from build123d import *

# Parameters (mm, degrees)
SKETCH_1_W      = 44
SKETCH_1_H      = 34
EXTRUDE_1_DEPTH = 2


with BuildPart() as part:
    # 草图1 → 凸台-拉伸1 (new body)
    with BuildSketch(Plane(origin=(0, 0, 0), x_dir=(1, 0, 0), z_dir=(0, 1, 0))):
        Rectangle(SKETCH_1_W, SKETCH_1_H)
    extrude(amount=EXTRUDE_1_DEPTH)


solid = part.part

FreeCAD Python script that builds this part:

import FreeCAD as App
import Part
import Sketcher
from FreeCAD import Vector


def add_polygon(sketch, points):
    """Adds a closed chain of lines whose ends are joined by coincident constraints."""
    first, n = sketch.GeometryCount, len(points)
    for a, b in zip(points, points[1:] + points[:1]):
        sketch.addGeometry(Part.LineSegment(App.Vector(*a, 0), App.Vector(*b, 0)), False)
    for i in range(n):
        sketch.addConstraint(Sketcher.Constraint("Coincident", first + i, 2, first + (i + 1) % n, 1))

doc = App.newDocument("Part")
body = doc.addObject("PartDesign::Body", "Body")

# Sketch on XZ plane
sketch1 = body.newObject("Sketcher::SketchObject", "Sketch")
sketch1.AttachmentSupport = (doc.getObject("XZ_Plane"), [""])
sketch1.MapMode = "FlatFace"
add_polygon(sketch1, [(-22, -17), (-22, 17), (22, 17), (22, -17)])  # lines 0-3
sketch1.addConstraint(Sketcher.Constraint("Vertical", 0))
sketch1.addConstraint(Sketcher.Constraint("Horizontal", 1))
sketch1.addConstraint(Sketcher.Constraint("Vertical", 2))
sketch1.addConstraint(Sketcher.Constraint("Horizontal", 3))
sketch1.addConstraint(Sketcher.Constraint("Symmetric", 0, 2, 2, 2, -1, 1))
sketch1.addConstraint(Sketcher.Constraint("DistanceX", 1, 1, 1, 2, 44.0))
sketch1.addConstraint(Sketcher.Constraint("DistanceY", 0, 1, 0, 2, 34.0))
pad1 = body.newObject("PartDesign::Pad", "Pad")
pad1.Profile = sketch1
pad1.Length = 2
pad1.Reversed = True

doc.recompute()
